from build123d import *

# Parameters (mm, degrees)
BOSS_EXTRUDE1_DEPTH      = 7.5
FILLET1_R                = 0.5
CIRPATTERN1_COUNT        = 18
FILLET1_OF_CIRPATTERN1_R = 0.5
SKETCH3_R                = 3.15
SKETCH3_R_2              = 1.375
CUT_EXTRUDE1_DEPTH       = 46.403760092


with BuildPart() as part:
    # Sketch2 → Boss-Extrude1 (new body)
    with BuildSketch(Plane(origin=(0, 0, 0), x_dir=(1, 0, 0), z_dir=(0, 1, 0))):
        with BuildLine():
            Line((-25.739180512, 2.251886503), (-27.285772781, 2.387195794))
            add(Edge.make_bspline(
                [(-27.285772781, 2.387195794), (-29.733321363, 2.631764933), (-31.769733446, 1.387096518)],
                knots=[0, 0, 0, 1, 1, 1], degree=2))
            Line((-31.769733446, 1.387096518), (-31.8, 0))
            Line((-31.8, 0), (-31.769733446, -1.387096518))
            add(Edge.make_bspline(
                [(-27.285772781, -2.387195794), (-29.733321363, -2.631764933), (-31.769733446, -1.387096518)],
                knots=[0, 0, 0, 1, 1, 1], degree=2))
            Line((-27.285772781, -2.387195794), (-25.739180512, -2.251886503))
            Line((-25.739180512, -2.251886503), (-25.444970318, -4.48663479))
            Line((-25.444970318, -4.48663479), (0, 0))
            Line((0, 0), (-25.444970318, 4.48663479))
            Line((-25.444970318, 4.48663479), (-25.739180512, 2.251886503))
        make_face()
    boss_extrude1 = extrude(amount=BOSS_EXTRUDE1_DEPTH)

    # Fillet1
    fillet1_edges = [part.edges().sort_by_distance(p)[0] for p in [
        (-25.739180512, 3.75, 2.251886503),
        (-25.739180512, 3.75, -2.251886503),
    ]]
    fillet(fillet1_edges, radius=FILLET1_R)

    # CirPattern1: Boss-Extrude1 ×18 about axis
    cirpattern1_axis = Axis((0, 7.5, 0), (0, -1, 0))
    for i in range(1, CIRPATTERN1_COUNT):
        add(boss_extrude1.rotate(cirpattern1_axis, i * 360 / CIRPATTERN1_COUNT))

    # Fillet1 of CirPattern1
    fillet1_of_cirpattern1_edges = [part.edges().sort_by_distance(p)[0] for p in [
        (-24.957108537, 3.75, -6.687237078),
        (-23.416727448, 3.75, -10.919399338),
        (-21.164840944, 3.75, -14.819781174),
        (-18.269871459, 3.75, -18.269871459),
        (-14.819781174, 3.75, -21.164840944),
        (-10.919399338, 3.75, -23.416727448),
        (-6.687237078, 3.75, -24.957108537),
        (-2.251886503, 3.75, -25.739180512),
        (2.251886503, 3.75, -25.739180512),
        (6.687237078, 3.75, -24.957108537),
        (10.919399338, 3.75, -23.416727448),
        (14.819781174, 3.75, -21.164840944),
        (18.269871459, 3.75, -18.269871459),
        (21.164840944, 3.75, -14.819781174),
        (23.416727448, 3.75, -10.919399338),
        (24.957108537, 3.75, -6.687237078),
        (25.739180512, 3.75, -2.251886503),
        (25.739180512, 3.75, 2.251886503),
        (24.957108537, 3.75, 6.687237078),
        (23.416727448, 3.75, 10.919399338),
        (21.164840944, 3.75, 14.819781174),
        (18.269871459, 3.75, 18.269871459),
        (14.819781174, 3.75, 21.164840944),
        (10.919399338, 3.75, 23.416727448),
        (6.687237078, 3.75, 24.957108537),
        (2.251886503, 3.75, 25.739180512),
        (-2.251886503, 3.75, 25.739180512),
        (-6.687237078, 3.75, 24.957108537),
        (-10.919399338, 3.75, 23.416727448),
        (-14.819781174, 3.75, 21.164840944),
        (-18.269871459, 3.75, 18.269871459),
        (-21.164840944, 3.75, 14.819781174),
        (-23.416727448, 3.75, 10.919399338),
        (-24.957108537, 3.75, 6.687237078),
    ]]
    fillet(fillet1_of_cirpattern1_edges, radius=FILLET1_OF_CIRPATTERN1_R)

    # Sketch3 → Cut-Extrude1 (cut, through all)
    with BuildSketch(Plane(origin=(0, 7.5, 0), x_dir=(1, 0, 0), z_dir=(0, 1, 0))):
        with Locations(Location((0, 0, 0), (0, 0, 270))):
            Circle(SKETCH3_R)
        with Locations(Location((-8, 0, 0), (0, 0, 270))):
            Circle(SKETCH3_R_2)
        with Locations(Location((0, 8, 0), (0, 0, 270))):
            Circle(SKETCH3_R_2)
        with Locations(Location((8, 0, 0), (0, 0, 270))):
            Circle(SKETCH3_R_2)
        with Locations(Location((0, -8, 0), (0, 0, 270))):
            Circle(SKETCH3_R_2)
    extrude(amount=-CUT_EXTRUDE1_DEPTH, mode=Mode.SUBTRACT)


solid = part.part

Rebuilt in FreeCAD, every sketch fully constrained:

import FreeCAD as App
import Part
import Sketcher
Q = App.Units.Quantity


def edges_at(feature, points):
    """Names of the edges that pass closest to the given points."""
    edges = feature.Shape.Edges
    near = lambda p: min(range(len(edges)), key=lambda i: edges[i].distToShape(Part.Vertex(*p))[0])
    return sorted({f"Edge{near(p) + 1}" for p in points})

doc = App.newDocument("Part")
body = doc.addObject("PartDesign::Body", "Body")

# Sketch on XZ plane
sketch1 = body.newObject("Sketcher::SketchObject", "Sketch")
sketch1.AttachmentSupport = (doc.getObject("XZ_Plane"), [""])
sketch1.MapMode = "FlatFace"
sketch1.addGeometry([
    Part.LineSegment(App.Vector(-25.739181, -2.251887, 0), App.Vector(-27.285773, -2.387196, 0)),  # 0
    Part.BSplineCurve([App.Vector(-27.285773, -2.387196, 0), App.Vector(-29.733321, -2.631765, 0), App.Vector(-31.769733, -1.387097, 0)], [3, 3], [0, 1], False, 2, [1, 1, 1], False),  # 1
    Part.LineSegment(App.Vector(-31.769733, -1.387097, 0), App.Vector(-31.8, 0, 0)),  # 2
    Part.LineSegment(App.Vector(-31.8, 0, 0), App.Vector(-31.769733, 1.387097, 0)),  # 3
    Part.BSplineCurve([App.Vector(-27.285773, 2.387196, 0), App.Vector(-29.733321, 2.631765, 0), App.Vector(-31.769733, 1.387097, 0)], [3, 3], [0, 1], False, 2, [1, 1, 1], False),  # 4
    Part.LineSegment(App.Vector(-27.285773, 2.387196, 0), App.Vector(-25.739181, 2.251887, 0)),  # 5
    Part.LineSegment(App.Vector(-25.739181, 2.251887, 0), App.Vector(-25.44497, 4.486635, 0)),  # 6
    Part.LineSegment(App.Vector(-25.44497, 4.486635, 0), App.Vector(0, 0, 0)),  # 7
    Part.LineSegment(App.Vector(0, 0, 0), App.Vector(-25.44497, -4.486635, 0)),  # 8
    Part.LineSegment(App.Vector(-25.44497, -4.486635, 0), App.Vector(-25.739181, -2.251887, 0)),  # 9
], False)
sketch1.addConstraint([
    Sketcher.Constraint("Block", 1),
    Sketcher.Constraint("Block", 4),
    Sketcher.Constraint("Coincident", 0, 2, 1, 1),
    Sketcher.Constraint("Coincident", 1, 2, 2, 1),
    Sketcher.Constraint("Coincident", 2, 2, 3, 1),
    Sketcher.Constraint("Coincident", 3, 2, 4, 2),
    Sketcher.Constraint("Coincident", 4, 1, 5, 1),
    Sketcher.Constraint("Coincident", 5, 2, 6, 1),
    Sketcher.Constraint("Coincident", 6, 2, 7, 1),
    Sketcher.Constraint("Coincident", 7, 2, 8, 1),
    Sketcher.Constraint("Coincident", 8, 2, 9, 1),
    Sketcher.Constraint("Coincident", 9, 2, 0, 1),
    Sketcher.Constraint("Coincident", 7, 2, -1, 1),
    Sketcher.Constraint("Symmetric", 6, 2, 8, 2, -1),
    Sketcher.Constraint("Symmetric", 5, 2, 9, 2, -1),
    Sketcher.Constraint("PointOnObject", 2, 2, -1),
    Sketcher.Constraint("Angle", 0, Q("-175 deg")),
    Sketcher.Constraint("Angle", 7, Q("-10 deg")),
    Sketcher.Constraint("Angle", 6, Q("82.5 deg")),
    Sketcher.Constraint("DistanceX", 2, 2, -1, 1, 31.8),
    Sketcher.Constraint("Distance", 0, 1.5525),
])
pad1 = body.newObject("PartDesign::Pad", "Pad")
pad1.Profile = sketch1
pad1.Length = 7.5
pad1.Reversed = True
doc.recompute()

fillet = body.newObject("PartDesign::Fillet", "Fillet")
fillet.Base = (pad1, edges_at(pad1, [(-25.739, 3.75, 2.252), (-25.739, 3.75, -2.252)]))
fillet.Radius = 0.5
doc.recompute()

polarpattern = body.newObject("PartDesign::PolarPattern", "PolarPattern")
polarpattern.Originals = [pad1]
polarpattern.Axis = (doc.getObject("Y_Axis"), [""])
polarpattern.Angle = 360
polarpattern.Occurrences = 18
body.Tip = polarpattern
doc.recompute()

fillet2 = body.newObject("PartDesign::Fillet", "Fillet001")
fillet2.Base = (polarpattern, edges_at(polarpattern, [
    (-24.957, 3.75, -6.687),
    (-23.417, 3.75, -10.919),
    (-21.165, 3.75, -14.82),
    (-18.27, 3.75, -18.27),
    (-14.82, 3.75, -21.165),
    (-10.919, 3.75, -23.417),
    (-6.687, 3.75, -24.957),
    (-2.252, 3.75, -25.739),
    (2.252, 3.75, -25.739),
    (6.687, 3.75, -24.957),
    (10.919, 3.75, -23.417),
    (14.82, 3.75, -21.165),
    (18.27, 3.75, -18.27),
    (21.165, 3.75, -14.82),
    (23.417, 3.75, -10.919),
    (24.957, 3.75, -6.687),
    (25.739, 3.75, -2.252),
    (25.739, 3.75, 2.252),
    (24.957, 3.75, 6.687),
    (23.417, 3.75, 10.919),
    (21.165, 3.75, 14.82),
    (18.27, 3.75, 18.27),
    (14.82, 3.75, 21.165),
    (10.919, 3.75, 23.417),
    (6.687, 3.75, 24.957),
    (2.252, 3.75, 25.739),
    (-2.252, 3.75, 25.739),
    (-6.687, 3.75, 24.957),
    (-10.919, 3.75, 23.417),
    (-14.82, 3.75, 21.165),
    (-18.27, 3.75, 18.27),
    (-21.165, 3.75, 14.82),
    (-23.417, 3.75, 10.919),
    (-24.957, 3.75, 6.687),
]))
fillet2.Radius = 0.5

# Sketch on XZ plane
sketch2 = body.newObject("Sketcher::SketchObject", "Sketch001")
sketch2.AttachmentSupport = (doc.getObject("XZ_Plane"), [""])
sketch2.MapMode = "FlatFace"
sketch2.AttachmentOffset = App.Placement(App.Vector(0, 0, -7.5), App.Rotation())
sketch2.addGeometry([
    Part.Circle(App.Vector(0, 0, 0), App.Vector(0, 0, 1), 3.15),  # 0
    Part.Circle(App.Vector(-8, 0, 0), App.Vector(0, 0, 1), 1.375),  # 1
    Part.Circle(App.Vector(0, -8, 0), App.Vector(0, 0, 1), 1.375),  # 2
    Part.Circle(App.Vector(8, 0, 0), App.Vector(0, 0, 1), 1.375),  # 3
    Part.Circle(App.Vector(0, 8, 0), App.Vector(0, 0, 1), 1.375),  # 4
], False)
sketch2.addConstraint([
    Sketcher.Constraint("Coincident", 0, 3, -1, 1),
    Sketcher.Constraint("Equal", 1, 2),
    Sketcher.Constraint("Equal", 2, 3),
    Sketcher.Constraint("Equal", 3, 4),
    Sketcher.Constraint("Symmetric", 1, 3, 3, 3, -1, 1),
    Sketcher.Constraint("Symmetric", 2, 3, 4, 3, -1, 1),
    Sketcher.Constraint("PointOnObject", 1, 3, -1),
    Sketcher.Constraint("PointOnObject", 2, 3, -2),
    Sketcher.Constraint("Diameter", 0, 6.3),
    Sketcher.Constraint("Diameter", 1, 2.75),
    Sketcher.Constraint("DistanceX", 1, 3, -1, 1, 8.0),
    Sketcher.Constraint("DistanceY", 2, 3, -1, 1, 8.0),
])
pocket1 = body.newObject("PartDesign::Pocket", "Pocket")
pocket1.Profile = sketch2
pocket1.Type = "ThroughAll"
pocket1.Reversed = True

doc.recompute()
